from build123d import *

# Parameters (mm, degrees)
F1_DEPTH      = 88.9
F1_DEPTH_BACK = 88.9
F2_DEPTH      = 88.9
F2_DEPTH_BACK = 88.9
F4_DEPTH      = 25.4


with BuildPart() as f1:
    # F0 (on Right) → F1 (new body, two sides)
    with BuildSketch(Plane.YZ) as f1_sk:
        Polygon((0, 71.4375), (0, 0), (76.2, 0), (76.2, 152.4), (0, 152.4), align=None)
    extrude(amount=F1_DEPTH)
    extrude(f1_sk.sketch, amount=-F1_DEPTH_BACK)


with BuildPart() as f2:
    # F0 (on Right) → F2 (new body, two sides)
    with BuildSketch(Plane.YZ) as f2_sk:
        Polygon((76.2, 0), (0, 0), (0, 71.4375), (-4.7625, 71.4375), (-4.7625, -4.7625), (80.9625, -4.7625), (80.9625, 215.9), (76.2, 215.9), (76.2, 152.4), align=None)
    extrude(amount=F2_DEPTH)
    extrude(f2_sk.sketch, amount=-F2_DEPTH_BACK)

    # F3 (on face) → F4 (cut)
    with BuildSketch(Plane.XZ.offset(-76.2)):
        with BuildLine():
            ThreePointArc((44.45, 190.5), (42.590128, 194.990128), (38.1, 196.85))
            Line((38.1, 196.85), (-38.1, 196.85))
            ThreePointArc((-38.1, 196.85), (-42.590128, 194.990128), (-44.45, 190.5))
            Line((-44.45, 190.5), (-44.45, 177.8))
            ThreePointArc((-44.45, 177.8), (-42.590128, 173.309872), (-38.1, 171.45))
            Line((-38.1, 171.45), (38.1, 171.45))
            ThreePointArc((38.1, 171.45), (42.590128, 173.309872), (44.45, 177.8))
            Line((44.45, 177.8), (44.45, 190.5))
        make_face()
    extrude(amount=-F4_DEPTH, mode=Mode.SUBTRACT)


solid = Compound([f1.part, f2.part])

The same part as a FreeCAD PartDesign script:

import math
import FreeCAD as App
import Part
import Sketcher

V = App.Vector
Q = App.Units.Quantity

doc = App.newDocument("Part")
params = doc.addObject("Spreadsheet::Sheet", "Params")
for row, (alias, value) in enumerate([
    ("sketch1_width", "3 in"),
    ("sketch1_height", "6 in"),
    ("pad1_length", "3.5 in"),
    ("pad1_length2", "3.5 in"),
    ("sketch2_width", "3 in"),
    ("sketch2_height", "8.5 in"),
    ("sketch2_width2", "0.1875 in"),
    ("sketch2_height2", "2.8125 in"),
    ("pad2_length", "3.5 in"),
    ("pad2_length2", "3.5 in"),
    ("sketch3_width", "3 in"),
    ("sketch3_radius", "0.25 in"),
    ("sketch3_height", "0.5 in"),
    ("pocket1_length", "1 in"),
], start=1):
    params.set(f"A{row}", alias)
    params.set(f"B{row}", "=" + value)
    params.setAlias(f"B{row}", alias)

body = doc.addObject("PartDesign::Body", "Body")

# Sketch on YZ plane
sketch1 = doc.addObject("Sketcher::SketchObject", "Sketch")
body.addObject(sketch1)
sketch1.AttachmentSupport = (doc.YZ_Plane, [""])
sketch1.MapMode = "FlatFace"
sketch1.addGeometry(Part.LineSegment(V(0, 0, 0), V(76.2, 0, 0)), False)
sketch1.addGeometry(Part.LineSegment(V(76.2, 0, 0), V(76.2, 152.4, 0)), False)
sketch1.addGeometry(Part.LineSegment(V(76.2, 152.4, 0), V(0, 152.4, 0)), False)
sketch1.addGeometry(Part.LineSegment(V(0, 152.4, 0), V(0, 0, 0)), False)
sketch1.addConstraint(Sketcher.Constraint("Coincident", 0, 2, 1, 1))
sketch1.addConstraint(Sketcher.Constraint("Coincident", 1, 2, 2, 1))
sketch1.addConstraint(Sketcher.Constraint("Coincident", 2, 2, 3, 1))
sketch1.addConstraint(Sketcher.Constraint("Coincident", 3, 2, 0, 1))
sketch1.addConstraint(Sketcher.Constraint("Horizontal", 0))
sketch1.addConstraint(Sketcher.Constraint("Vertical", 1))
sketch1.addConstraint(Sketcher.Constraint("Horizontal", 2))
sketch1.addConstraint(Sketcher.Constraint("Vertical", 3))
sketch1.addConstraint(Sketcher.Constraint("Coincident", 3, 2, -1, 1))
sketch1.addConstraint(Sketcher.Constraint("DistanceX", 0, 1, 0, 2, Q("3 in")))
sketch1.addConstraint(Sketcher.Constraint("DistanceY", 1, 1, 1, 2, Q("6 in")))
sketch1.setExpression("Constraints[9]", "Params.sketch1_width")
sketch1.setExpression("Constraints[10]", "Params.sketch1_height")
pad1 = doc.addObject("PartDesign::Pad", "Pad")
body.addObject(pad1)
pad1.Profile = sketch1
pad1.Type = "TwoLengths"
pad1.setExpression("Length", "Params.pad1_length")
pad1.setExpression("Length2", "Params.pad1_length2")
body2 = doc.addObject("PartDesign::Body", "Body001")

# Sketch on YZ plane
sketch2 = doc.addObject("Sketcher::SketchObject", "Sketch001")
body2.addObject(sketch2)
sketch2.AttachmentSupport = (doc.getObject("YZ_Plane001"), [""])
sketch2.MapMode = "FlatFace"
sketch2.addGeometry(Part.LineSegment(V(76.2, 0, 0), V(0, 0, 0)), False)
sketch2.addGeometry(Part.LineSegment(V(0, 0, 0), V(0, 71.4375, 0)), False)
sketch2.addGeometry(Part.LineSegment(V(0, 71.4375, 0), V(-4.7625, 71.4375, 0)), False)
sketch2.addGeometry(Part.LineSegment(V(-4.7625, 71.4375, 0), V(-4.7625, -4.7625, 0)), False)
sketch2.addGeometry(Part.LineSegment(V(-4.7625, -4.7625, 0), V(80.9625, -4.7625, 0)), False)
sketch2.addGeometry(Part.LineSegment(V(80.9625, -4.7625, 0), V(80.9625, 215.9, 0)), False)
sketch2.addGeometry(Part.LineSegment(V(80.9625, 215.9, 0), V(76.2, 215.9, 0)), False)
sketch2.addGeometry(Part.LineSegment(V(76.2, 215.9, 0), V(76.2, 0, 0)), False)
sketch2.addConstraint(Sketcher.Constraint("Coincident", 0, 2, 1, 1))
sketch2.addConstraint(Sketcher.Constraint("Coincident", 1, 2, 2, 1))
sketch2.addConstraint(Sketcher.Constraint("Coincident", 2, 2, 3, 1))
sketch2.addConstraint(Sketcher.Constraint("Coincident", 3, 2, 4, 1))
sketch2.addConstraint(Sketcher.Constraint("Coincident", 4, 2, 5, 1))
sketch2.addConstraint(Sketcher.Constraint("Coincident", 5, 2, 6, 1))
sketch2.addConstraint(Sketcher.Constraint("Coincident", 6, 2, 7, 1))
sketch2.addConstraint(Sketcher.Constraint("Coincident", 7, 2, 0, 1))
sketch2.addConstraint(Sketcher.Constraint("Horizontal", 0))
sketch2.addConstraint(Sketcher.Constraint("Vertical", 1))
sketch2.addConstraint(Sketcher.Constraint("Horizontal", 2))
sketch2.addConstraint(Sketcher.Constraint("Vertical", 3))
sketch2.addConstraint(Sketcher.Constraint("Horizontal", 4))
sketch2.addConstraint(Sketcher.Constraint("Vertical", 5))
sketch2.addConstraint(Sketcher.Constraint("Horizontal", 6))
sketch2.addConstraint(Sketcher.Constraint("Vertical", 7))
sketch2.addConstraint(Sketcher.Constraint("Coincident", 0, 2, -1, 1))
sketch2.addConstraint(Sketcher.Constraint("Equal", 2, 6))
sketch2.addConstraint(Sketcher.Constraint("Equal", 0, 3))
sketch2.addConstraint(Sketcher.Constraint("DistanceX", 0, 2, 0, 1, Q("3 in")))
sketch2.addConstraint(Sketcher.Constraint("DistanceY", 7, 2, 7, 1, Q("8.5 in")))
sketch2.addConstraint(Sketcher.Constraint("DistanceX", 2, 2, 2, 1, Q("0.1875 in")))
sketch2.addConstraint(Sketcher.Constraint("DistanceY", 1, 1, 1, 2, Q("2.8125 in")))
sketch2.setExpression("Constraints[19]", "Params.sketch2_width")
sketch2.setExpression("Constraints[20]", "Params.sketch2_height")
sketch2.setExpression("Constraints[21]", "Params.sketch2_width2")
sketch2.setExpression("Constraints[22]", "Params.sketch2_height2")
pad2 = doc.addObject("PartDesign::Pad", "Pad001")
body2.addObject(pad2)
pad2.Profile = sketch2
pad2.Type = "TwoLengths"
pad2.setExpression("Length", "Params.pad2_length")
pad2.setExpression("Length2", "Params.pad2_length2")

# Sketch on XZ plane
sketch3 = doc.addObject("Sketcher::SketchObject", "Sketch002")
body2.addObject(sketch3)
sketch3.AttachmentSupport = (doc.getObject("XZ_Plane001"), [""])
sketch3.MapMode = "FlatFace"
sketch3.AttachmentOffset = App.Placement(V(0, 0, -3 * 25.4), App.Rotation())
sketch3.addGeometry(Part.ArcOfCircle(Part.Circle(V(38.1, 190.5, 0), V(0, 0, 1), 6.35), math.radians(0.000002), math.radians(89.999998)), False)
sketch3.addGeometry(Part.LineSegment(V(38.1, 196.85, 0), V(-38.1, 196.85, 0)), False)
sketch3.addGeometry(Part.ArcOfCircle(Part.Circle(V(-38.1, 190.5, 0), V(0, 0, 1), 6.35), math.radians(90.000002), math.radians(179.999998)), False)
sketch3.addGeometry(Part.LineSegment(V(-44.45, 190.5, 0), V(-44.45, 177.8, 0)), False)
sketch3.addGeometry(Part.ArcOfCircle(Part.Circle(V(-38.1, 177.8, 0), V(0, 0, 1), 6.35), math.radians(-179.999998), math.radians(-90.000002)), False)
sketch3.addGeometry(Part.LineSegment(V(-38.1, 171.45, 0), V(38.1, 171.45, 0)), False)
sketch3.addGeometry(Part.ArcOfCircle(Part.Circle(V(38.1, 177.8, 0), V(0, 0, 1), 6.35), math.radians(-89.999998), math.radians(-0.000002)), False)
sketch3.addGeometry(Part.LineSegment(V(44.45, 177.8, 0), V(44.45, 190.5, 0)), False)
sketch3.addConstraint(Sketcher.Constraint("Tangent", 0, 2, 1, 1))
sketch3.addConstraint(Sketcher.Constraint("Tangent", 1, 2, 2, 1))
sketch3.addConstraint(Sketcher.Constraint("Tangent", 2, 2, 3, 1))
sketch3.addConstraint(Sketcher.Constraint("Tangent", 3, 2, 4, 1))
sketch3.addConstraint(Sketcher.Constraint("Tangent", 4, 2, 5, 1))
sketch3.addConstraint(Sketcher.Constraint("Tangent", 5, 2, 6, 1))
sketch3.addConstraint(Sketcher.Constraint("Tangent", 6, 2, 7, 1))
sketch3.addConstraint(Sketcher.Constraint("Tangent", 7, 2, 0, 1))
sketch3.addConstraint(Sketcher.Constraint("Horizontal", 1))
sketch3.addConstraint(Sketcher.Constraint("Vertical", 3))
sketch3.addConstraint(Sketcher.Constraint("Horizontal", 5))
sketch3.addConstraint(Sketcher.Constraint("Vertical", 7))
sketch3.addConstraint(Sketcher.Constraint("Equal", 0, 2))
sketch3.addConstraint(Sketcher.Constraint("Equal", 2, 4))
sketch3.addConstraint(Sketcher.Constraint("Equal", 4, 6))
sketch3.addConstraint(Sketcher.Constraint("DistanceX", 1, 2, 1, 1, Q("3 in")))
sketch3.addConstraint(Sketcher.Constraint("Radius", 0, Q("0.25 in")))
sketch3.addConstraint(Sketcher.Constraint("DistanceY", 3, 2, 3, 1, Q("0.5 in")))
sketch3.addConstraint(Sketcher.Constraint("DistanceY", -1, 1, 4, 3, Q("7 in")))
sketch3.addConstraint(Sketcher.Constraint("DistanceX", -1, 1, 0, 3, Q("1.5 in")))
sketch3.setExpression("Constraints[15]", "Params.sketch3_width")
sketch3.setExpression("Constraints[16]", "Params.sketch3_radius")
sketch3.setExpression("Constraints[17]", "Params.sketch3_height")
pocket1 = doc.addObject("PartDesign::Pocket", "Pocket")
body2.addObject(pocket1)
pocket1.Profile = sketch3
pocket1.setExpression("Length", "Params.pocket1_length")

doc.recompute()
